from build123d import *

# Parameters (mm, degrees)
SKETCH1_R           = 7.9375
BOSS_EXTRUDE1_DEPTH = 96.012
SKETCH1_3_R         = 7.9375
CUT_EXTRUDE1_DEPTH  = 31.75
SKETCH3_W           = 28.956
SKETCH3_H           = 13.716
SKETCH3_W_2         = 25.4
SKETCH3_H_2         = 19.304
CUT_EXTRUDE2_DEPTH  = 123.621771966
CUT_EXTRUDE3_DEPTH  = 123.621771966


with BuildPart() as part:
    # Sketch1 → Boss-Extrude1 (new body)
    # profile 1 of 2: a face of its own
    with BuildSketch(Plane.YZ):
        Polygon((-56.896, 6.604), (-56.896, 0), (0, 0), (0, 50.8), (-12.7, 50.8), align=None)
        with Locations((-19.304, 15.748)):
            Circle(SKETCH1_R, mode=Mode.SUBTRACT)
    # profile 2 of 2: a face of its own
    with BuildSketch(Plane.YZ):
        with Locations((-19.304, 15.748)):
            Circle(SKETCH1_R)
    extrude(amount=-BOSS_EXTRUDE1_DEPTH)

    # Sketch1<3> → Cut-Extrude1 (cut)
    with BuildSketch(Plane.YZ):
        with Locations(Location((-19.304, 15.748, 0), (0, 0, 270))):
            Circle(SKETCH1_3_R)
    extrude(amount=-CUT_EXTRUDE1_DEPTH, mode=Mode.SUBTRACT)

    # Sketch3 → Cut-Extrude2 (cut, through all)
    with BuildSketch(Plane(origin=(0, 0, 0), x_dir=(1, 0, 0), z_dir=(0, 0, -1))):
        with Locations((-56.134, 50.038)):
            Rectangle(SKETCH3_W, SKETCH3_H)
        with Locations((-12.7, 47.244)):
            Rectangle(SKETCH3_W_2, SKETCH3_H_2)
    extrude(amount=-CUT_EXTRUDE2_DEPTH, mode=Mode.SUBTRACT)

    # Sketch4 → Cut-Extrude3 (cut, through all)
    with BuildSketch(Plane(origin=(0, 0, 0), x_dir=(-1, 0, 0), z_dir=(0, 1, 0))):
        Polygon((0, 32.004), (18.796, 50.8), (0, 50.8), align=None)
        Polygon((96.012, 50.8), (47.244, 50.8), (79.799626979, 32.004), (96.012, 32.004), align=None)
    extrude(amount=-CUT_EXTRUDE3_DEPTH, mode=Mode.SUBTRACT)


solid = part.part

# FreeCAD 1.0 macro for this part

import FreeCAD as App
import Part
import Sketcher
from FreeCAD import Vector
Q = App.Units.Quantity


def add_polygon(sketch, points):
    """Adds a closed chain of lines whose ends are joined by coincident constraints."""
    first, n = sketch.GeometryCount, len(points)
    for a, b in zip(points, points[1:] + points[:1]):
        sketch.addGeometry(Part.LineSegment(App.Vector(*a, 0), App.Vector(*b, 0)), False)
    for i in range(n):
        sketch.addConstraint(Sketcher.Constraint("Coincident", first + i, 2, first + (i + 1) % n, 1))

doc = App.newDocument("Part")
body = doc.addObject("PartDesign::Body", "Body")

sketch1 = body.newObject("Sketcher::SketchObject", "Sketch")
sketch1.AttachmentSupport = (doc.getObject("YZ_Plane"), [""])
sketch1.MapMode = "FlatFace"
add_polygon(sketch1, [(-56.896, 6.604), (-56.896, 0), (0, 0), (0, 50.8), (-12.7, 50.8)])
sketch1.addConstraint([
    Sketcher.Constraint("Vertical", 0),
    Sketcher.Constraint("Horizontal", 1),
    Sketcher.Constraint("Vertical", 2),
    Sketcher.Constraint("Horizontal", 3),
    Sketcher.Constraint("Coincident", 1, 2, -1, 1),
    Sketcher.Constraint("DistanceY", 2, 1, 2, 2, Q("2 in")),
    Sketcher.Constraint("DistanceX", 3, 2, 3, 1, Q("0.5 in")),
    Sketcher.Constraint("Angle", 4, Q("-135 deg")),
    Sketcher.Constraint("DistanceX", 1, 1, 1, 2, Q("2.24 in")),
])
pad1 = body.newObject("PartDesign::Pad", "Pad")
pad1.Profile = sketch1
pad1.Length = Q("3.78 in")
pad1.Reversed = True

sketch2 = body.newObject("Sketcher::SketchObject", "Sketch001")
sketch2.AttachmentSupport = (doc.getObject("YZ_Plane"), [""])
sketch2.MapMode = "FlatFace"
sketch2.addGeometry(Part.Circle(Vector(-19.304, 15.748, 0), Vector(0, 0, 1), 7.9375), False)
sketch2.addConstraint([
    Sketcher.Constraint("Diameter", 0, Q("0.625 in")),
    Sketcher.Constraint("DistanceX", 0, 3, -1, 1, Q("0.76 in")),
    Sketcher.Constraint("DistanceY", -1, 1, 0, 3, Q("0.62 in")),
])
pocket1 = body.newObject("PartDesign::Pocket", "Pocket")
pocket1.Profile = sketch2
pocket1.Length = Q("1.25 in")

sketch3 = body.newObject("Sketcher::SketchObject", "Sketch002")
sketch3.AttachmentSupport = (doc.getObject("XY_Plane"), [""])
sketch3.MapMode = "FlatFace"
add_polygon(sketch3, [(-70.612, -56.896), (-70.612, -43.18), (-41.656, -43.18), (-41.656, -56.896)])
add_polygon(sketch3, [(-25.4, -56.896), (-25.4, -37.592), (0, -37.592), (0, -56.896)])
sketch3.addConstraint([
    Sketcher.Constraint("Vertical", 0),
    Sketcher.Constraint("Horizontal", 1),
    Sketcher.Constraint("Vertical", 2),
    Sketcher.Constraint("Horizontal", 3),
    Sketcher.Constraint("Vertical", 4),
    Sketcher.Constraint("Horizontal", 5),
    Sketcher.Constraint("Vertical", 6),
    Sketcher.Constraint("Horizontal", 7),
    Sketcher.Constraint("PointOnObject", 5, 2, -2),
    Sketcher.Constraint("Horizontal", 3, 2, 6, 2),
    Sketcher.Constraint("DistanceX", 5, 1, 5, 2, Q("1 in")),
    Sketcher.Constraint("DistanceX", 1, 1, 1, 2, Q("1.14 in")),
    Sketcher.Constraint("DistanceY", 0, 1, 0, 2, Q("0.54 in")),
    Sketcher.Constraint("DistanceY", 4, 1, 4, 2, Q("0.76 in")),
    Sketcher.Constraint("DistanceY", 0, 2, -1, 1, Q("1.7 in")),
    Sketcher.Constraint("DistanceX", 0, 2, -1, 1, Q("2.78 in")),
])
pocket2 = body.newObject("PartDesign::Pocket", "Pocket001")
pocket2.Profile = sketch3
pocket2.Type = "ThroughAll"
pocket2.Reversed = True

sketch4 = body.newObject("Sketcher::SketchObject", "Sketch003")
sketch4.AttachmentSupport = (doc.getObject("XZ_Plane"), [""])
sketch4.MapMode = "FlatFace"
add_polygon(sketch4, [(0, 32.004), (-18.796, 50.8), (0, 50.8)])
add_polygon(sketch4, [(-96.012, 50.8), (-47.244, 50.8), (-79.799627, 32.004), (-96.012, 32.004)])
sketch4.addConstraint([
    Sketcher.Constraint("Horizontal", 1),
    Sketcher.Constraint("Vertical", 2),
    Sketcher.Constraint("Horizontal", 3),
    Sketcher.Constraint("Horizontal", 5),
    Sketcher.Constraint("Vertical", 6),
    Sketcher.Constraint("PointOnObject", 1, 2, -2),
    Sketcher.Constraint("Horizontal", 1, 2, 3, 2),
    Sketcher.Constraint("Horizontal", 2, 2, 4, 2),
    Sketcher.Constraint("Equal", 1, 2),
    Sketcher.Constraint("DistanceY", -1, 1, 0, 2, Q("2 in")),
    Sketcher.Constraint("Angle", 4, Q("-150 deg")),
    Sketcher.Constraint("DistanceX", 1, 1, 1, 2, Q("0.74 in")),
    Sketcher.Constraint("DistanceX", 3, 1, 3, 2, Q("1.92 in")),
    Sketcher.Constraint("DistanceX", 3, 2, -1, 1, Q("1.86 in")),
])
pocket3 = body.newObject("PartDesign::Pocket", "Pocket002")
pocket3.Profile = sketch4
pocket3.Type = "ThroughAll"
pocket3.Reversed = True

doc.recompute()
